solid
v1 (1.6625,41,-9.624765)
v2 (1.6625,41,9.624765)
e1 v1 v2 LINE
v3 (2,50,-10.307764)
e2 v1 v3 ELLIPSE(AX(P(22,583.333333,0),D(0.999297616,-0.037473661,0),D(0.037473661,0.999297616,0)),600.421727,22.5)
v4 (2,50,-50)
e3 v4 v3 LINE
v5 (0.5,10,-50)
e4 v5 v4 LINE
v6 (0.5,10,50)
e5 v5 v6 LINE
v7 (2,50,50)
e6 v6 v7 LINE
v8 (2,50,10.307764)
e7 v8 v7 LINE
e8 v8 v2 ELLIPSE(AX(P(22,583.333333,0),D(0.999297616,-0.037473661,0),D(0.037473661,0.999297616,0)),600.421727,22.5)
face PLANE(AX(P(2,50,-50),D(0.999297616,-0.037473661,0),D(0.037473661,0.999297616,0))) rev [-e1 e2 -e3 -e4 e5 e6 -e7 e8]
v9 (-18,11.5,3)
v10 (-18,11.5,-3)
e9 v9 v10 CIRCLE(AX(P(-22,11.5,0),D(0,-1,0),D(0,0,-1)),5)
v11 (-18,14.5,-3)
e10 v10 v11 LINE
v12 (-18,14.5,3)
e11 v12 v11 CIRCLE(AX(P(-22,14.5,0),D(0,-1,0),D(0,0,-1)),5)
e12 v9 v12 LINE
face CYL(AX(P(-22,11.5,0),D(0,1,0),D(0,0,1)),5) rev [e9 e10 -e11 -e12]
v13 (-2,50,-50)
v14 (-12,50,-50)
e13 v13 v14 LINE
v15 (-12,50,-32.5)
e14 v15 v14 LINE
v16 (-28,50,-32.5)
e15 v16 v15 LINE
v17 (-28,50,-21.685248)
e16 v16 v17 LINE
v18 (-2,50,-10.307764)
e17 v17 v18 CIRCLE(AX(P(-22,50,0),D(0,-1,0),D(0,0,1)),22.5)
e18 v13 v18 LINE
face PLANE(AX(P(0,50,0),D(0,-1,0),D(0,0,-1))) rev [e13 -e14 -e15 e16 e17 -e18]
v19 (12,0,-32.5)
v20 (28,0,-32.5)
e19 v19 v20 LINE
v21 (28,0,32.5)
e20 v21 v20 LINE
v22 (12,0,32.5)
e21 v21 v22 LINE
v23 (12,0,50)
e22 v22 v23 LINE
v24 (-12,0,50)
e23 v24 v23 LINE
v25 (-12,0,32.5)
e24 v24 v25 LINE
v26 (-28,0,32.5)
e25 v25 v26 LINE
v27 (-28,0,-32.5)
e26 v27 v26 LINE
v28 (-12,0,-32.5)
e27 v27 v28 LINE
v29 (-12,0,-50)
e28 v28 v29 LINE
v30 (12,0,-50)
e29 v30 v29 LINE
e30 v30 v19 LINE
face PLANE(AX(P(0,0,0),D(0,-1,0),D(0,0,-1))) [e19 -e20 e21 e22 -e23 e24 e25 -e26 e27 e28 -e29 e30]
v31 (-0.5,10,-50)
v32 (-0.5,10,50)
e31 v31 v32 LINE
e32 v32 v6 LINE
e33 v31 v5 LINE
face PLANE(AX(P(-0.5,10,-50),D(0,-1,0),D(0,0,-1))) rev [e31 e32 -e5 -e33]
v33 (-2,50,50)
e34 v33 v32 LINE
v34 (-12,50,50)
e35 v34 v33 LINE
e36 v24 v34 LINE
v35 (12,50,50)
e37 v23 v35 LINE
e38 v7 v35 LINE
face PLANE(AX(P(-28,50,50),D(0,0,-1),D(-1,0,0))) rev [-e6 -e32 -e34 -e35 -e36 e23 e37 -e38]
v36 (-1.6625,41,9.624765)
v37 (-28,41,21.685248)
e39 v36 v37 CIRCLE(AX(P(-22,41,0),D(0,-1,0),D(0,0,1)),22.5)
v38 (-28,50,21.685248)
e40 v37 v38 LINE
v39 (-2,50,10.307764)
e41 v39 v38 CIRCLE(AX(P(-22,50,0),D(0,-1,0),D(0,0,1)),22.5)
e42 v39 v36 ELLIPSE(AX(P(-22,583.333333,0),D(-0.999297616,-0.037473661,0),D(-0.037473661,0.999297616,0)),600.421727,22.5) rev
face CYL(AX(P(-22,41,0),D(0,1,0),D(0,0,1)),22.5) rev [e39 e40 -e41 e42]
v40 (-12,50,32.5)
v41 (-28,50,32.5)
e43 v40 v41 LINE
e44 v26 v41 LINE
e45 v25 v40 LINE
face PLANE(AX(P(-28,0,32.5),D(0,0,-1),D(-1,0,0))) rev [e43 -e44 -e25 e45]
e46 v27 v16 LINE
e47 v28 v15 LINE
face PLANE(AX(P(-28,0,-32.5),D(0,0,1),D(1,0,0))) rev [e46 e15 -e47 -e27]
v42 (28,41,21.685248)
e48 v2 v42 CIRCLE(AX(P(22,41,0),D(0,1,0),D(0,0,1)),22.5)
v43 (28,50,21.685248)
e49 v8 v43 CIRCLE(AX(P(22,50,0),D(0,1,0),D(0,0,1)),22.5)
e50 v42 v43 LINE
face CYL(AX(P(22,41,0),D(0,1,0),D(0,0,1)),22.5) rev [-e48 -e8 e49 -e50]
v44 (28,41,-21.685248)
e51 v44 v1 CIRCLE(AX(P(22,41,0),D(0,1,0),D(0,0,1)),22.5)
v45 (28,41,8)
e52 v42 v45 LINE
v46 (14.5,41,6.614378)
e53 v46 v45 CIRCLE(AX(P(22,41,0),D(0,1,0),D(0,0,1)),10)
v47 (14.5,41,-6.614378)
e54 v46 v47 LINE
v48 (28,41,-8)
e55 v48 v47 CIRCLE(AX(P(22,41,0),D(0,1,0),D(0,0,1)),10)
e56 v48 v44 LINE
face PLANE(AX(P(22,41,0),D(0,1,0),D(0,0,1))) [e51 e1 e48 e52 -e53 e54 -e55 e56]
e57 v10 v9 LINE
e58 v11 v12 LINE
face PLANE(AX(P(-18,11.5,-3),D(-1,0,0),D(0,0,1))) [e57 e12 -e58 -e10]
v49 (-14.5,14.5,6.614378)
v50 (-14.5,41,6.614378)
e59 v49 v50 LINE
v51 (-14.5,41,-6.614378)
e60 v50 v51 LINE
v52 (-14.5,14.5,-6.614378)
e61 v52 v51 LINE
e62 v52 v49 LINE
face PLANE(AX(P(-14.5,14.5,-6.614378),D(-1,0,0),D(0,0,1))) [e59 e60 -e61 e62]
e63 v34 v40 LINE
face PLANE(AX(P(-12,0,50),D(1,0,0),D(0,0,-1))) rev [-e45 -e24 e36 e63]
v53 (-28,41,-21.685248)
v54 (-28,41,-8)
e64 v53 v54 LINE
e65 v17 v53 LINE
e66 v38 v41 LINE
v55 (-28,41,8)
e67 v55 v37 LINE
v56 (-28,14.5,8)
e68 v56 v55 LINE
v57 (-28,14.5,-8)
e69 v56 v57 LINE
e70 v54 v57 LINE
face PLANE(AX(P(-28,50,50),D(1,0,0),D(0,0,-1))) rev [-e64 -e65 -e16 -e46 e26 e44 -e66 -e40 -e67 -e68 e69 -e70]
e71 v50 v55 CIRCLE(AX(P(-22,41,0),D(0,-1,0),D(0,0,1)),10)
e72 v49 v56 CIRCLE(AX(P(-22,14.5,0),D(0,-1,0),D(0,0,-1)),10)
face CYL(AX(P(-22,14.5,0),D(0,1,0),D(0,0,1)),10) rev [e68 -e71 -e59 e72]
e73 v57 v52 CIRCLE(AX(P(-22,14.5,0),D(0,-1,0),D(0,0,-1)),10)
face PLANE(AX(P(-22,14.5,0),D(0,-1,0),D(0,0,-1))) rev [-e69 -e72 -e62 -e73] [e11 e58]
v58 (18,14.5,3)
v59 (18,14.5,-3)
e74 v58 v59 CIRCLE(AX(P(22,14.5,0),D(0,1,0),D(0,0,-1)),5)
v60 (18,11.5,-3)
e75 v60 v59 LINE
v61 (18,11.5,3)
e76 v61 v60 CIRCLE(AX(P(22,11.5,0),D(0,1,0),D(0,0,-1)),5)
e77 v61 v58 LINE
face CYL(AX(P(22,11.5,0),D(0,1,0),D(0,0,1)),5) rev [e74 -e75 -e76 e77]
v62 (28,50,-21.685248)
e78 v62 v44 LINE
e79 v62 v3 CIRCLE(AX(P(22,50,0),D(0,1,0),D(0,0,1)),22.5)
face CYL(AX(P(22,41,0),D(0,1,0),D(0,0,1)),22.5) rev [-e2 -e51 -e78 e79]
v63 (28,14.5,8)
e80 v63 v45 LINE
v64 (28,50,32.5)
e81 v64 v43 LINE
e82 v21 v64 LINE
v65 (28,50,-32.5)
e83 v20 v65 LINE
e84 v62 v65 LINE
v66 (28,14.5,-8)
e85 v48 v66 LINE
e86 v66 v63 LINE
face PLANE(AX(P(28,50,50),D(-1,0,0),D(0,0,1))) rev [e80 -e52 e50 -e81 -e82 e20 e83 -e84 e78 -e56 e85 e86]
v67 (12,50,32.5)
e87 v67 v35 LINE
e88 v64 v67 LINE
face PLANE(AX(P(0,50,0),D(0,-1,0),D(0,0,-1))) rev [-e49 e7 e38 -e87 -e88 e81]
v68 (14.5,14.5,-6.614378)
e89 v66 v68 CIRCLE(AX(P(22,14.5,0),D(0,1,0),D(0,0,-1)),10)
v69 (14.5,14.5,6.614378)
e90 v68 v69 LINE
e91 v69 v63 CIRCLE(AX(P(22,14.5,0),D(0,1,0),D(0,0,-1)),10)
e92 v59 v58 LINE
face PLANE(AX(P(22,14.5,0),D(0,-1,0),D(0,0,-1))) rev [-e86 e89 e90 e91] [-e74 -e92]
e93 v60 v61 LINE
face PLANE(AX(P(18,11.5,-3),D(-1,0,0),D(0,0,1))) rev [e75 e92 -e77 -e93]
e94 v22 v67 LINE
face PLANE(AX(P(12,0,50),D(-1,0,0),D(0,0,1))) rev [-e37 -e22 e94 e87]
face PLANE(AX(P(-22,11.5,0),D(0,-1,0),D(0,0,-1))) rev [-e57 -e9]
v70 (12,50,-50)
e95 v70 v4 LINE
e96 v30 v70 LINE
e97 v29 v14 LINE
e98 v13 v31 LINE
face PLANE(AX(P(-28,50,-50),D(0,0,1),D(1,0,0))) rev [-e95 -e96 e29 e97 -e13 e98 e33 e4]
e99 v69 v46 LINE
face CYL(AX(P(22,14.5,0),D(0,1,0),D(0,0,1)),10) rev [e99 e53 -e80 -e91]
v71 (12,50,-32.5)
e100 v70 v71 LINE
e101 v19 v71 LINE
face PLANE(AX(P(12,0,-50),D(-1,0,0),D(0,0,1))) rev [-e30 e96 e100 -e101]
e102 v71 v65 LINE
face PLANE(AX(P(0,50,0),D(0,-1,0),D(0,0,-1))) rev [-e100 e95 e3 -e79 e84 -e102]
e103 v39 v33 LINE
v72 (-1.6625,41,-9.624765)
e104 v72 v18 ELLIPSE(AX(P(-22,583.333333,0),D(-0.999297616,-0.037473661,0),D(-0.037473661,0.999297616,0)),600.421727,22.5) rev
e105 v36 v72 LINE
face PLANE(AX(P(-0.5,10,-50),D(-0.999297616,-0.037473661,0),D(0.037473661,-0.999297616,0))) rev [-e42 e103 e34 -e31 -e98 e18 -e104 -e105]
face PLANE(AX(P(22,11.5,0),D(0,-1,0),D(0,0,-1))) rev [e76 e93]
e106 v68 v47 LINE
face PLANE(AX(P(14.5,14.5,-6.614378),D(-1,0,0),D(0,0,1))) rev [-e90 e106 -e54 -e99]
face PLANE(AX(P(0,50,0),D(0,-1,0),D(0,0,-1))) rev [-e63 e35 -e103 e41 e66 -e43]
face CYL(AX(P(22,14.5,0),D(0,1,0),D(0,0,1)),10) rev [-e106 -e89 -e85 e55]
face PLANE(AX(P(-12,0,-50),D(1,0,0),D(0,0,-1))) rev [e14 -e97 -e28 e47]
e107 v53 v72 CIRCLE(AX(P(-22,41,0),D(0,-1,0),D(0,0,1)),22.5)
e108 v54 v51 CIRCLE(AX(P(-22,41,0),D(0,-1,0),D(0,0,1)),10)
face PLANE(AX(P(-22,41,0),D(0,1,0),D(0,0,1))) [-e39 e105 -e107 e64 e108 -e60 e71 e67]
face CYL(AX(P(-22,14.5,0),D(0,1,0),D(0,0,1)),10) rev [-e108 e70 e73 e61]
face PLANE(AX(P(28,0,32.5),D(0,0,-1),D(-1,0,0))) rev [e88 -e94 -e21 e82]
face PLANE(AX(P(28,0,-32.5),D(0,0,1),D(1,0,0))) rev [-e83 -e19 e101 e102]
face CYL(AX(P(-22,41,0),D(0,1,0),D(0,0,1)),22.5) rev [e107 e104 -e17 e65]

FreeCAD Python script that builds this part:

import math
import FreeCAD as App
import Part
import Sketcher
Q = App.Units.Quantity


def add_polygon(sketch, points):
    """Adds a closed chain of lines whose ends are joined by coincident constraints."""
    first, n = sketch.GeometryCount, len(points)
    for a, b in zip(points, points[1:] + points[:1]):
        sketch.addGeometry(Part.LineSegment(App.Vector(*a, 0), App.Vector(*b, 0)), False)
    for i in range(n):
        sketch.addConstraint(Sketcher.Constraint("Coincident", first + i, 2, first + (i + 1) % n, 1))

doc = App.newDocument("Part")
body = doc.addObject("PartDesign::Body", "Body")

sketch1 = body.newObject("Sketcher::SketchObject", "Sketch")
sketch1.AttachmentSupport = (doc.getObject("XZ_Plane"), [""])
sketch1.MapMode = "FlatFace"
add_polygon(sketch1, [(-28, -50), (-28, 50), (28, 50), (28, -50)])
sketch1.addConstraint([
    Sketcher.Constraint("Vertical", 0),
    Sketcher.Constraint("Horizontal", 1),
    Sketcher.Constraint("Vertical", 2),
    Sketcher.Constraint("Horizontal", 3),
    Sketcher.Constraint("Symmetric", 0, 2, 2, 2, -1, 1),
    Sketcher.Constraint("DistanceX", 1, 1, 1, 2, Q("56 mm")),
    Sketcher.Constraint("DistanceY", 0, 1, 0, 2, Q("100 mm")),
])
pad1 = body.newObject("PartDesign::Pad", "Pad")
pad1.Profile = sketch1
pad1.Length = 50
pad1.Reversed = True

sketch2 = body.newObject("Sketcher::SketchObject", "Sketch001")
sketch2.AttachmentSupport = (doc.getObject("XY_Plane"), [""])
sketch2.MapMode = "FlatFace"
sketch2.AttachmentOffset = App.Placement(App.Vector(0, 0, 50), App.Rotation())
add_polygon(sketch2, [(-2, 50), (-0.5, 10), (0.5, 10), (2, 50)])
sketch2.addConstraint([
    Sketcher.Constraint("Horizontal", 1),
    Sketcher.Constraint("Horizontal", 3),
    Sketcher.Constraint("Equal", 0, 2),
    Sketcher.Constraint("DistanceX", 1, 1, 1, 2, Q("1 mm")),
    Sketcher.Constraint("DistanceX", 3, 2, 3, 1, Q("4 mm")),
    Sketcher.Constraint("DistanceY", -1, 1, 0, 2, Q("10 mm")),
    Sketcher.Constraint("DistanceX", -1, 1, 2, 2, Q("2 mm")),
    Sketcher.Constraint("DistanceY", -1, 1, 2, 2, Q("50 mm")),
])
pocket1 = body.newObject("PartDesign::Pocket", "Pocket")
pocket1.Profile = sketch2
pocket1.Type = "ThroughAll"

sketch3 = body.newObject("Sketcher::SketchObject", "Sketch002")
sketch3.AttachmentSupport = (doc.getObject("XZ_Plane"), [""])
sketch3.MapMode = "FlatFace"
sketch3.AttachmentOffset = App.Placement(App.Vector(0, 0, -50), App.Rotation())
sketch3.addGeometry([
    Part.Circle(App.Vector(22, 0, 0), App.Vector(0, 0, 1), 22),
    Part.Circle(App.Vector(22, 0, 0), App.Vector(0, 0, 1), 10),
], False)
sketch3.addConstraint([
    Sketcher.Constraint("Coincident", 1, 3, 0, 3),
    Sketcher.Constraint("PointOnObject", 0, 3, -1),
    Sketcher.Constraint("Diameter", 0, Q("45 mm")),
    Sketcher.Constraint("Diameter", 1, Q("20 mm")),
    Sketcher.Constraint("DistanceX", -1, 1, 0, 3, Q("22 mm")),
])
pocket2 = body.newObject("PartDesign::Pocket", "Pocket001")
pocket2.Profile = sketch3
pocket2.Length = 9
pocket2.Reversed = True

sketch4 = body.newObject("Sketcher::SketchObject", "Sketch003")
sketch4.AttachmentSupport = (doc.getObject("XZ_Plane"), [""])
sketch4.MapMode = "FlatFace"
sketch4.AttachmentOffset = App.Placement(App.Vector(0, 0, -50), App.Rotation())
sketch4.addGeometry([
    Part.LineSegment(App.Vector(14, -7, 0), App.Vector(14, 7, 0)),
    Part.ArcOfCircle(Part.Circle(App.Vector(22, 0, 0), App.Vector(0, 0, 1), 10), math.radians(-139), math.radians(139)),
], False)
sketch4.addConstraint([
    Sketcher.Constraint("Coincident", 0, 1, 1, 1),
    Sketcher.Constraint("Coincident", 1, 2, 0, 2),
    Sketcher.Constraint("Vertical", 0),
    Sketcher.Constraint("PointOnObject", 1, 3, -1),
    Sketcher.Constraint("Radius", 1, Q("10 mm")),
    Sketcher.Constraint("DistanceX", -1, 1, 1, 3, Q("22 mm")),
    Sketcher.Constraint("DistanceX", -1, 1, 0, 1, Q("14.5 mm")),
])
pocket3 = body.newObject("PartDesign::Pocket", "Pocket002")
pocket3.Profile = sketch4
pocket3.Length = 35.5
pocket3.Reversed = True

sketch5 = body.newObject("Sketcher::SketchObject", "Sketch004")
sketch5.AttachmentSupport = (doc.getObject("XZ_Plane"), [""])
sketch5.MapMode = "FlatFace"
sketch5.AttachmentOffset = App.Placement(App.Vector(0, 0, -14.5), App.Rotation())
sketch5.addGeometry([
    Part.LineSegment(App.Vector(18, -3, 0), App.Vector(18, 3, 0)),
    Part.ArcOfCircle(Part.Circle(App.Vector(22, 0, 0), App.Vector(0, 0, 1), 5), math.radians(-143), math.radians(143)),
], False)
sketch5.addConstraint([
    Sketcher.Constraint("Coincident", 0, 1, 1, 1),
    Sketcher.Constraint("Coincident", 1, 2, 0, 2),
    Sketcher.Constraint("Vertical", 0),
    Sketcher.Constraint("PointOnObject", 1, 3, -1),
    Sketcher.Constraint("Radius", 1, Q("5 mm")),
    Sketcher.Constraint("DistanceY", 0, 1, 0, 2, Q("6 mm")),
    Sketcher.Constraint("DistanceX", -1, 1, 1, 3, Q("22 mm")),
])
pocket4 = body.newObject("PartDesign::Pocket", "Pocket003")
pocket4.Profile = sketch5
pocket4.Length = 3
pocket4.Reversed = True

sketch6 = body.newObject("Sketcher::SketchObject", "Sketch005")
sketch6.AttachmentSupport = (doc.getObject("XZ_Plane"), [""])
sketch6.MapMode = "FlatFace"
sketch6.AttachmentOffset = App.Placement(App.Vector(0, 0, -50), App.Rotation())
sketch6.addGeometry([
    Part.LineSegment(App.Vector(14, 7, 0), App.Vector(14, -7, 0)),
    Part.ArcOfCircle(Part.Circle(App.Vector(22, 0, 0), App.Vector(0, 0, 1), 10), math.radians(139), math.radians(221)),
], False)
sketch6.addConstraint([
    Sketcher.Constraint("Coincident", 0, 1, 1, 1),
    Sketcher.Constraint("Coincident", 1, 2, 0, 2),
    Sketcher.Constraint("Vertical", 0),
    Sketcher.Constraint("PointOnObject", 1, 3, -1),
    Sketcher.Constraint("Radius", 1, Q("10 mm")),
    Sketcher.Constraint("DistanceX", -1, 1, 1, 3, Q("22 mm")),
    Sketcher.Constraint("DistanceX", -1, 1, 0, 1, Q("14.5 mm")),
])
pocket5 = body.newObject("PartDesign::Pocket", "Pocket004")
pocket5.Profile = sketch6
pocket5.Length = 9
pocket5.Reversed = True
doc.recompute()

mirrored = body.newObject("PartDesign::Mirrored", "Mirrored")
mirrored.Originals = [pocket2, pocket3, pocket4, pocket5]
mirrored.MirrorPlane = (doc.getObject("YZ_Plane"), [""])
body.Tip = mirrored

sketch7 = body.newObject("Sketcher::SketchObject", "Sketch006")
sketch7.AttachmentSupport = (doc.getObject("XZ_Plane"), [""])
sketch7.MapMode = "FlatFace"
sketch7.AttachmentOffset = App.Placement(App.Vector(0, 0, -50), App.Rotation())
add_polygon(sketch7, [(-28, -50), (-28, -32), (-12, -32), (-12, -50)])
add_polygon(sketch7, [(12, -50), (12, -32), (28, -32), (28, -50)])
add_polygon(sketch7, [(-28, 32), (-28, 50), (-12, 50), (-12, 32)])
add_polygon(sketch7, [(12, 32), (12, 50), (28, 50), (28, 32)])
sketch7.addConstraint([
    Sketcher.Constraint("Vertical", 0),
    Sketcher.Constraint("Horizontal", 1),
    Sketcher.Constraint("Vertical", 2),
    Sketcher.Constraint("Horizontal", 3),
    Sketcher.Constraint("Vertical", 4),
    Sketcher.Constraint("Horizontal", 5),
    Sketcher.Constraint("Vertical", 6),
    Sketcher.Constraint("Horizontal", 7),
    Sketcher.Constraint("Vertical", 8),
    Sketcher.Constraint("Horizontal", 9),
    Sketcher.Constraint("Vertical", 10),
    Sketcher.Constraint("Horizontal", 11),
    Sketcher.Constraint("Vertical", 12),
    Sketcher.Constraint("Horizontal", 13),
    Sketcher.Constraint("Vertical", 14),
    Sketcher.Constraint("Horizontal", 15),
    Sketcher.Constraint("Symmetric", 6, 2, 8, 2, -1, 1),
    Sketcher.Constraint("Symmetric", 4, 2, 10, 2, -1, 1),
    Sketcher.Constraint("Symmetric", 2, 2, 12, 2, -1, 1),
    Sketcher.Constraint("Symmetric", 0, 2, 14, 2, -1, 1),
    Sketcher.Constraint("Symmetric", 1, 2, 4, 2, -2),
    Sketcher.Constraint("Symmetric", 3, 2, 6, 2, -2),
    Sketcher.Constraint("DistanceX", 1, 1, 1, 2, Q("16 mm")),
    Sketcher.Constraint("DistanceY", 0, 1, 0, 2, Q("17.5 mm")),
    Sketcher.Constraint("DistanceX", 0, 2, -1, 1, Q("28 mm")),
    Sketcher.Constraint("DistanceY", 2, 2, -1, 1, Q("50 mm")),
])
pocket6 = body.newObject("PartDesign::Pocket", "Pocket005")
pocket6.Profile = sketch7
pocket6.Type = "ThroughAll"
pocket6.Reversed = True

doc.recompute()
